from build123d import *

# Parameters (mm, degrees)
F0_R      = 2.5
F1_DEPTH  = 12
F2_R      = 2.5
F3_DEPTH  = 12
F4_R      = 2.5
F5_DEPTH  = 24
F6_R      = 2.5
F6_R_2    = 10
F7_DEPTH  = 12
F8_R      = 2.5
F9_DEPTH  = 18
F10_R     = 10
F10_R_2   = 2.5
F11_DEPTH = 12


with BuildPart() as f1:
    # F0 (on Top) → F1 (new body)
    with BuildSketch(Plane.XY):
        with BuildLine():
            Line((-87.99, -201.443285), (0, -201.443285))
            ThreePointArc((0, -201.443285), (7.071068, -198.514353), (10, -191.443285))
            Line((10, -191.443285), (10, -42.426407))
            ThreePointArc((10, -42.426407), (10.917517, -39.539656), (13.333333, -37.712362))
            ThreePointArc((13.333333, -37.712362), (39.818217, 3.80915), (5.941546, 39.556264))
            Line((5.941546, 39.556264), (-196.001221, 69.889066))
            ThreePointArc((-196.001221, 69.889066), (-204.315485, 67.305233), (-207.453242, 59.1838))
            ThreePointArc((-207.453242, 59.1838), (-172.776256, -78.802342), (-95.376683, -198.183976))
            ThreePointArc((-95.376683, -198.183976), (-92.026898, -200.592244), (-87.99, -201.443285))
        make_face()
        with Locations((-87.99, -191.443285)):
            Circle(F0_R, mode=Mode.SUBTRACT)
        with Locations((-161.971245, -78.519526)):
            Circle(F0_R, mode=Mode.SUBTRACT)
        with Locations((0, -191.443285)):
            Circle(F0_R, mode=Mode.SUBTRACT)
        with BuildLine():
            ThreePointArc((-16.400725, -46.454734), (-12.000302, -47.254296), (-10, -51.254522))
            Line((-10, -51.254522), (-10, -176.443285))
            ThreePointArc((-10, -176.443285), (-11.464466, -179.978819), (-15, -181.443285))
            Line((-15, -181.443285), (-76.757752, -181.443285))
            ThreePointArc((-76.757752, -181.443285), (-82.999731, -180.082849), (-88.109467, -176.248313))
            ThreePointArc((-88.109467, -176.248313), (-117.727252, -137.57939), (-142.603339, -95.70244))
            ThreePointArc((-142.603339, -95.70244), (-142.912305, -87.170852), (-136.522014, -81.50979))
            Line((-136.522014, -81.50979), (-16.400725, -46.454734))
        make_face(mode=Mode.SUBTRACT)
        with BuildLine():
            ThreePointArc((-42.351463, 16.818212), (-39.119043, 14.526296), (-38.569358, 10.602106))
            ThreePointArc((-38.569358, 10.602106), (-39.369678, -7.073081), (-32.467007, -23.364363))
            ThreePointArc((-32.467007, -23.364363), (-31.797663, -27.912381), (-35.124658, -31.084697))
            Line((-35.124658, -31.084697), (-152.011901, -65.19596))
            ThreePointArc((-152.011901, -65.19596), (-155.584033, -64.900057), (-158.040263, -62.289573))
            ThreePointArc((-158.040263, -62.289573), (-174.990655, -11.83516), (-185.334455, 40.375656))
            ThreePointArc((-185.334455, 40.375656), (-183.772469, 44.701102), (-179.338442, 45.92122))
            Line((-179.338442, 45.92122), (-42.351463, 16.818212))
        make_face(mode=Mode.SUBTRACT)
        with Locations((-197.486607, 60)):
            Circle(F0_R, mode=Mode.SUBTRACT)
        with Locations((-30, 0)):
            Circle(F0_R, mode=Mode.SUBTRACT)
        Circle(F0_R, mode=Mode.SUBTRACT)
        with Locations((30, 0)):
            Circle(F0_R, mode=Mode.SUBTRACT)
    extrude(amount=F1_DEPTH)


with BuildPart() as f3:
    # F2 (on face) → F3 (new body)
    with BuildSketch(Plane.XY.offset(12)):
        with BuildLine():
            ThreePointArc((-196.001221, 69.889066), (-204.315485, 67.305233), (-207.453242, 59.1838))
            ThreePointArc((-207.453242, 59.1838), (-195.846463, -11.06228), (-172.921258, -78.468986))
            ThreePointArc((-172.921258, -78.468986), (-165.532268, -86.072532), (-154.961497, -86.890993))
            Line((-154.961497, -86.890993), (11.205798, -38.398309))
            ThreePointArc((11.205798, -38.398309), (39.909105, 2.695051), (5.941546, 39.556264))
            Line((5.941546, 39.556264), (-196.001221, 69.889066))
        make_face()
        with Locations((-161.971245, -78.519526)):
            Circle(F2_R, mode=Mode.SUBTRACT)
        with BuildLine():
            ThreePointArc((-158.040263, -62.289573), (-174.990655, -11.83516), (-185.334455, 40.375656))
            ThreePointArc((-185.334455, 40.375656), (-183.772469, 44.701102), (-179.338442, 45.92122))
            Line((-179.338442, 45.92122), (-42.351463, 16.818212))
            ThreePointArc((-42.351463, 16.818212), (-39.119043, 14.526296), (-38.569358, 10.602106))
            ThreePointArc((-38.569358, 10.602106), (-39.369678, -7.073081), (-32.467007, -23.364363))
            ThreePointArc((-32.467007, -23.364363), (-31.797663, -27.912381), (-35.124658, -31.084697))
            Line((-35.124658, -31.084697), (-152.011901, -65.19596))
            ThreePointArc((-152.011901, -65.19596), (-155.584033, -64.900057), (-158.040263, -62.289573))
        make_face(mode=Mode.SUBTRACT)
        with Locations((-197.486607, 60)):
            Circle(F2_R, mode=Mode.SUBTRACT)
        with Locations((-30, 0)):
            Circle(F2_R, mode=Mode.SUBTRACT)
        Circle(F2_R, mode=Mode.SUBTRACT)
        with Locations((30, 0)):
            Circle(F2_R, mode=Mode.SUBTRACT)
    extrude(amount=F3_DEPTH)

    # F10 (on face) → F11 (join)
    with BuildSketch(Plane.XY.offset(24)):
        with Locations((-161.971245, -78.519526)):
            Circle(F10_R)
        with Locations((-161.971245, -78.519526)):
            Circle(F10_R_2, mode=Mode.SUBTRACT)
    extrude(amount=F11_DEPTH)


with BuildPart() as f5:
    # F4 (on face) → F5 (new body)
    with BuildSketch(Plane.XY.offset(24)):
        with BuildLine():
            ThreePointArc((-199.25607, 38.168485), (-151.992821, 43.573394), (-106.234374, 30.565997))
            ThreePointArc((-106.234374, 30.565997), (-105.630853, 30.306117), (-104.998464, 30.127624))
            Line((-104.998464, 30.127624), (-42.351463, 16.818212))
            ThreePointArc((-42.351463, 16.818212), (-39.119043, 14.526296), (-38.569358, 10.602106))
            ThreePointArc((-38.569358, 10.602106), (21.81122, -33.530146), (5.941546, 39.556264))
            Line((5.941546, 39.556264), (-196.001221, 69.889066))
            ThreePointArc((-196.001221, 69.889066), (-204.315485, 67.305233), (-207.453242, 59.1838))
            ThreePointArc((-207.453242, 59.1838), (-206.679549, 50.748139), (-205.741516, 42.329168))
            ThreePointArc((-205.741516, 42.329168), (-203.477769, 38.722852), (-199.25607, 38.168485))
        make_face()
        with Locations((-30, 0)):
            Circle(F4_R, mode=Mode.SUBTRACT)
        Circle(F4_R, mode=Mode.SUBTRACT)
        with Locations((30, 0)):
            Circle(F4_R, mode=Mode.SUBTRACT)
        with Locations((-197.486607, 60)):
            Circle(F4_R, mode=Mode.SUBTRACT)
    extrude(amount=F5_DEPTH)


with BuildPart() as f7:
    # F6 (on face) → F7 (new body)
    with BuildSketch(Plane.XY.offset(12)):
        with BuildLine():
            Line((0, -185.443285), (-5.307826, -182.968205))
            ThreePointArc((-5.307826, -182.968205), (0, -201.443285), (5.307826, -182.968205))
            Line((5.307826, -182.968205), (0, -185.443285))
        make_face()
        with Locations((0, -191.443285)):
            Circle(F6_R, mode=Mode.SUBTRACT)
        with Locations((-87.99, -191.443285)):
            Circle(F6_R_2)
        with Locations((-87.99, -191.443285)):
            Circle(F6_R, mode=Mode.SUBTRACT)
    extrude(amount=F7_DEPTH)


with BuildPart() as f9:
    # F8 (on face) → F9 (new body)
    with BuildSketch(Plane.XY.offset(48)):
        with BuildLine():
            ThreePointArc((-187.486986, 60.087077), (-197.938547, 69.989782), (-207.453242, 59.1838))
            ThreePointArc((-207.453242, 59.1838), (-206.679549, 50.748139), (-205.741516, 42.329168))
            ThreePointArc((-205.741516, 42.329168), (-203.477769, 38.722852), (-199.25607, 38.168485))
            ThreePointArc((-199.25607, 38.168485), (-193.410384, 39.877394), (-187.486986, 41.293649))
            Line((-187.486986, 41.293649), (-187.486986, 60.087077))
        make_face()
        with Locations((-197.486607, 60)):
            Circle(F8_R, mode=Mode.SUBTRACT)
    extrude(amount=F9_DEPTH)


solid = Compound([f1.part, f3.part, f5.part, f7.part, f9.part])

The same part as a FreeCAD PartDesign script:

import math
import FreeCAD as App
import Part
import Sketcher
Q = App.Units.Quantity

doc = App.newDocument("Part")
params = doc.addObject("Spreadsheet::Sheet", "Params")
for row, (alias, value) in enumerate([
    ("sketch1_diameter", "5 mm"),
    ("sketch1_radius", "9.999999 mm"),
    ("sketch1_radius2", "5 mm"),
    ("sketch1_radius3", "40 mm"),
    ("sketch1_radius4", "14.999999 mm"),
    ("pad1_length", "12 mm"),
    ("sketch2_diameter", "5 mm"),
    ("sketch2_diameter2", "5 mm"),
    ("sketch2_diameter3", "5 mm"),
    ("sketch2_diameter4", "5 mm"),
    ("sketch2_diameter5", "5 mm"),
    ("pad2_length", "12 mm"),
    ("sketch3_diameter", "20 mm"),
    ("sketch3_diameter2", "5 mm"),
    ("pad3_length", "12 mm"),
    ("sketch4_diameter", "5 mm"),
    ("sketch4_diameter2", "5 mm"),
    ("sketch4_diameter3", "5 mm"),
    ("sketch4_diameter4", "5 mm"),
    ("sketch4_radius", "4.999998 mm"),
    ("pad4_length", "24 mm"),
    ("sketch5_diameter", "5 mm"),
    ("sketch5_diameter2", "20 mm"),
    ("pad5_length", "12 mm"),
    ("sketch6_diameter", "5 mm"),
    ("sketch6_radius", "10 mm"),
    ("sketch6_radius2", "5 mm"),
    ("pad6_length", "18 mm"),
], start=1):
    params.set(f"A{row}", alias)
    params.set(f"B{row}", "=" + value)
    params.setAlias(f"B{row}", alias)

body = doc.addObject("PartDesign::Body", "Body")

sketch1 = body.newObject("Sketcher::SketchObject", "Sketch")
sketch1.AttachmentSupport = (doc.getObject("XY_Plane"), [""])
sketch1.MapMode = "FlatFace"
sketch1.addGeometry([
    Part.LineSegment(App.Vector(-87.99, -201.443285, 0), App.Vector(0, -201.443285, 0)),
    Part.ArcOfCircle(Part.Circle(App.Vector(0.000001, -191.443286, 0), App.Vector(0, 0, 1), 9.999999), math.radians(-90.000004), math.radians(0.000004)),
    Part.LineSegment(App.Vector(10, -191.443285, 0), App.Vector(10, -42.426407, 0)),
    Part.ArcOfCircle(Part.Circle(App.Vector(15, -42.426407, 0), App.Vector(0, 0, 1), 5), math.radians(109.471227), math.radians(179.999996)),
    Part.ArcOfCircle(Part.Circle(App.Vector(0, 0, 0), App.Vector(0, 0, 1), 40), math.radians(-70.52878), math.radians(81.457752)),
    Part.LineSegment(App.Vector(5.941546, 39.556264, 0), App.Vector(-196.001221, 69.889066, 0)),
    Part.ArcOfCircle(Part.Circle(App.Vector(-197.486608, 60.000001, 0), App.Vector(0, 0, 1), 9.999999), math.radians(81.45775), math.radians(184.681694)),
    Part.ArcOfCircle(Part.Circle(App.Vector(225.510667, 94.640614, 0), App.Vector(0, 0, 1), 434.41332), math.radians(-175.318311), math.radians(-137.618099)),
    Part.ArcOfCircle(Part.Circle(App.Vector(-87.989999, -191.443283, 0), App.Vector(0, 0, 1), 10.000002), math.radians(-137.618092), math.radians(-90.000005)),
    Part.Circle(App.Vector(-87.99, -191.443285, 0), App.Vector(0, 0, 1), 2.5),
    Part.Circle(App.Vector(-161.971245, -78.519526, 0), App.Vector(0, 0, 1), 2.5),
    Part.Circle(App.Vector(0, -191.443285, 0), App.Vector(0, 0, 1), 2.5),
    Part.LineSegment(App.Vector(-136.522014, -81.50979, 0), App.Vector(-16.400725, -46.454734, 0)),
    Part.ArcOfCircle(Part.Circle(App.Vector(-15, -51.254522, 0), App.Vector(0, 0, 1), 5), math.radians(0.000006), math.radians(106.268859)),
    Part.LineSegment(App.Vector(-10, -51.254522, 0), App.Vector(-10, -176.443285, 0)),
    Part.ArcOfCircle(Part.Circle(App.Vector(-15, -176.443285, 0), App.Vector(0, 0, 1), 5), math.radians(-90.000004), math.radians(0.000004)),
    Part.LineSegment(App.Vector(-15, -181.443285, 0), App.Vector(-76.757752, -181.443285, 0)),
    Part.ArcOfCircle(Part.Circle(App.Vector(-76.757753, -166.443286, 0), App.Vector(0, 0, 1), 14.999999), math.radians(-139.181234), math.radians(-89.999997)),
    Part.ArcOfCircle(Part.Circle(App.Vector(225.510684, 94.640628, 0), App.Vector(0, 0, 1), 414.413341), math.radians(-152.657583), math.radians(-139.181236)),
    Part.ArcOfCircle(Part.Circle(App.Vector(-133.720564, -91.109367, 0), App.Vector(0, 0, 1), 10.000001), math.radians(106.268859), math.radians(207.342413)),
    Part.LineSegment(App.Vector(-179.338442, 45.92122, 0), App.Vector(-42.351463, 16.818212, 0)),
    Part.ArcOfCircle(Part.Circle(App.Vector(-43.390527, 11.92737, 0), App.Vector(0, 0, 1), 4.999999), math.radians(-15.370088), math.radians(78.005792)),
    Part.ArcOfCircle(Part.Circle(App.Vector(-0.000001, 0, 0), App.Vector(0, 0, 1), 40), math.radians(164.629919), math.radians(215.740076)),
    Part.ArcOfCircle(Part.Circle(App.Vector(-36.525382, -26.284909, 0), App.Vector(0, 0, 1), 5), math.radians(-73.731147), math.radians(35.74008)),
    Part.LineSegment(App.Vector(-35.124658, -31.084697, 0), App.Vector(-152.011901, -65.19596, 0)),
    Part.ArcOfCircle(Part.Circle(App.Vector(-153.412625, -60.39617, 0), App.Vector(0, 0, 1), 5.000001), math.radians(-157.748028), math.radians(-73.731157)),
    Part.ArcOfCircle(Part.Circle(App.Vector(225.510715, 94.640629, 0), App.Vector(0, 0, 1), 414.41337), math.radians(-172.47585), math.radians(-157.748035)),
    Part.ArcOfCircle(Part.Circle(App.Vector(-180.377505, 41.030376, 0), App.Vector(0, 0, 1), 5.000001), math.radians(78.005803), math.radians(187.524144)),
    Part.Circle(App.Vector(-197.486607, 60, 0), App.Vector(0, 0, 1), 2.5),
    Part.Circle(App.Vector(-30, 0, 0), App.Vector(0, 0, 1), 2.5),
    Part.Circle(App.Vector(0, 0, 0), App.Vector(0, 0, 1), 2.5),
    Part.Circle(App.Vector(30, 0, 0), App.Vector(0, 0, 1), 2.5),
], False)
sketch1.addConstraint([
    Sketcher.Constraint("Tangent", 0, 2, 1, 1),
    Sketcher.Constraint("Tangent", 1, 2, 2, 1),
    Sketcher.Constraint("Tangent", 2, 2, 3, 2),
    Sketcher.Constraint("Tangent", 3, 1, 4, 1),
    Sketcher.Constraint("Tangent", 4, 2, 5, 1),
    Sketcher.Constraint("Tangent", 5, 2, 6, 1),
    Sketcher.Constraint("Tangent", 6, 2, 7, 1),
    Sketcher.Constraint("Tangent", 7, 2, 8, 1),
    Sketcher.Constraint("Tangent", 8, 2, 0, 1),
    Sketcher.Constraint("Tangent", 12, 2, 13, 2),
    Sketcher.Constraint("Tangent", 13, 1, 14, 1),
    Sketcher.Constraint("Tangent", 14, 2, 15, 2),
    Sketcher.Constraint("Tangent", 15, 1, 16, 1),
    Sketcher.Constraint("Tangent", 16, 2, 17, 2),
    Sketcher.Constraint("Tangent", 17, 1, 18, 2),
    Sketcher.Constraint("Tangent", 18, 1, 19, 2),
    Sketcher.Constraint("Tangent", 19, 1, 12, 1),
    Sketcher.Constraint("Tangent", 20, 2, 21, 2),
    Sketcher.Constraint("Tangent", 21, 1, 22, 1),
    Sketcher.Constraint("Tangent", 22, 2, 23, 2),
    Sketcher.Constraint("Tangent", 23, 1, 24, 1),
    Sketcher.Constraint("Tangent", 24, 2, 25, 2),
    Sketcher.Constraint("Tangent", 25, 1, 26, 2),
    Sketcher.Constraint("Tangent", 26, 1, 27, 2),
    Sketcher.Constraint("Tangent", 27, 1, 20, 1),
    Sketcher.Constraint("Horizontal", 0),
    Sketcher.Constraint("Vertical", 2),
    Sketcher.Constraint("Vertical", 14),
    Sketcher.Constraint("Horizontal", 16),
    Sketcher.Constraint("Coincident", 4, 3, -1, 1),
    Sketcher.Constraint("Coincident", 22, 3, -1, 1),
    Sketcher.Constraint("Coincident", 30, 3, -1, 1),
    Sketcher.Constraint("Coincident", 9, 3, 8, 3),
    Sketcher.Constraint("Coincident", 11, 3, 1, 3),
    Sketcher.Constraint("Coincident", 28, 3, 6, 3),
    Sketcher.Constraint("Equal", 1, 6),
    Sketcher.Constraint("Equal", 9, 10),
    Sketcher.Constraint("Equal", 10, 11),
    Sketcher.Constraint("Equal", 3, 13),
    Sketcher.Constraint("Equal", 13, 15),
    Sketcher.Constraint("Equal", 8, 19),
    Sketcher.Constraint("Equal", 15, 21),
    Sketcher.Constraint("Equal", 4, 22),
    Sketcher.Constraint("Equal", 21, 23),
    Sketcher.Constraint("Equal", 23, 25),
    Sketcher.Constraint("Equal", 25, 27),
    Sketcher.Constraint("Equal", 11, 28),
    Sketcher.Constraint("Equal", 28, 29),
    Sketcher.Constraint("Equal", 29, 30),
    Sketcher.Constraint("Equal", 30, 31),
    Sketcher.Constraint("Symmetric", 29, 3, 31, 3, -1, 1),
    Sketcher.Constraint("PointOnObject", 1, 3, -2),
    Sketcher.Constraint("PointOnObject", 29, 3, -1),
    Sketcher.Constraint("Parallel", 12, 24),
    Sketcher.Constraint("Horizontal", 1, 3, 9, 3),
    Sketcher.Constraint("Horizontal", 18, 3, 26, 3),
    Sketcher.Constraint("Diameter", 9, 5.0),
    Sketcher.Constraint("Radius", 1, 9.999999),
    Sketcher.Constraint("Radius", 3, 5.0),
    Sketcher.Constraint("Radius", 4, 40.0),
    Sketcher.Constraint("Radius", 17, 14.999999),
    Sketcher.Constraint("DistanceY", -1, 1, 6, 3, 60.000001),
    Sketcher.Constraint("DistanceX", 13, 3, -1, 1, 15.0),
    Sketcher.Constraint("DistanceX", 29, 3, -1, 1, 30.0),
    Sketcher.Constraint("DistanceY", 11, 3, 15, 3, 15.0),
    Sketcher.Constraint("DistanceX", 0, 1, 0, 2, 87.99),
    Sketcher.Constraint("Radius", 7, 434.41332),
    Sketcher.Constraint("Radius", 18, 414.413341),
    Sketcher.Constraint("Radius", 26, 414.41337),
    Sketcher.Constraint("DistanceX", 16, 2, 16, 1, 61.757752),
    Sketcher.Constraint("DistanceY", 2, 1, 2, 2, 149.016878),
    Sketcher.Constraint("DistanceX", 24, 2, -1, 1, 152.011901),
    Sketcher.Constraint("DistanceY", 1, 3, 7, 3, 286.0839),
    Sketcher.Constraint("DistanceY", 3, 3, 23, 3, 16.141499),
    Sketcher.Constraint("DistanceY", 10, 3, 27, 3, 119.549902),
    Sketcher.Constraint("DistanceX", 28, 3, 27, 3, 17.109102),
    Sketcher.Constraint("Distance", 20, 140.044341),
    Sketcher.Constraint("Distance", 24, 121.762908),
    Sketcher.Constraint("DistanceY", 14, 2, 14, 1, 125.188763),
    Sketcher.Constraint("DistanceY", -1, 1, 21, 3, 11.92737),
    Sketcher.Constraint("DistanceX", 10, 3, 19, 3, 28.250681),
])
sketch1.setExpression("Constraints[56]", "Params.sketch1_diameter")
sketch1.setExpression("Constraints[57]", "Params.sketch1_radius")
sketch1.setExpression("Constraints[58]", "Params.sketch1_radius2")
sketch1.setExpression("Constraints[59]", "Params.sketch1_radius3")
sketch1.setExpression("Constraints[60]", "Params.sketch1_radius4")
pad1 = body.newObject("PartDesign::Pad", "Pad")
pad1.Profile = sketch1
pad1.setExpression("Length", "Params.pad1_length")
body2 = doc.addObject("PartDesign::Body", "Body001")

sketch2 = body2.newObject("Sketcher::SketchObject", "Sketch001")
sketch2.AttachmentSupport = (doc.getObject("XY_Plane001"), [""])
sketch2.MapMode = "FlatFace"
sketch2.AttachmentOffset = App.Placement(App.Vector(0, 0, 12), App.Rotation())
sketch2.addGeometry([
    Part.ArcOfCircle(Part.Circle(App.Vector(-197.486608, 60.000001, 0), App.Vector(0, 0, 1), 9.999999), math.radians(81.45775), math.radians(184.681694)),
    Part.ArcOfCircle(Part.Circle(App.Vector(225.510627, 94.640603, 0), App.Vector(0, 0, 1), 434.413278), math.radians(-175.318312), math.radians(-156.51615)),
    Part.ArcOfCircle(Part.Circle(App.Vector(-159.163671, -72.491626, 0), App.Vector(0, 0, 1), 15.000001), math.radians(-156.516146), math.radians(-73.731146)),
    Part.LineSegment(App.Vector(-154.961497, -86.890993, 0), App.Vector(11.205798, -38.398309, 0)),
    Part.ArcOfCircle(Part.Circle(App.Vector(-0.000001, 0, 0), App.Vector(0, 0, 1), 40), math.radians(-73.731143), math.radians(81.45775)),
    Part.LineSegment(App.Vector(5.941546, 39.556264, 0), App.Vector(-196.001221, 69.889066, 0)),
    Part.Circle(App.Vector(-161.971245, -78.519526, 0), App.Vector(0, 0, 1), 2.5),
    Part.ArcOfCircle(Part.Circle(App.Vector(-153.412625, -60.39617, 0), App.Vector(0, 0, 1), 5.000001), math.radians(-157.748028), math.radians(-73.731157)),
    Part.ArcOfCircle(Part.Circle(App.Vector(225.510715, 94.640629, 0), App.Vector(0, 0, 1), 414.41337), math.radians(-172.47585), math.radians(-157.748035)),
    Part.ArcOfCircle(Part.Circle(App.Vector(-180.377505, 41.030376, 0), App.Vector(0, 0, 1), 5.000001), math.radians(78.005803), math.radians(187.524144)),
    Part.LineSegment(App.Vector(-179.338442, 45.92122, 0), App.Vector(-42.351463, 16.818212, 0)),
    Part.ArcOfCircle(Part.Circle(App.Vector(-43.390527, 11.92737, 0), App.Vector(0, 0, 1), 4.999999), math.radians(-15.370088), math.radians(78.005792)),
    Part.ArcOfCircle(Part.Circle(App.Vector(-0.000001, 0, 0), App.Vector(0, 0, 1), 40), math.radians(164.629919), math.radians(215.740076)),
    Part.ArcOfCircle(Part.Circle(App.Vector(-36.525382, -26.284909, 0), App.Vector(0, 0, 1), 5), math.radians(-73.731147), math.radians(35.74008)),
    Part.LineSegment(App.Vector(-35.124658, -31.084697, 0), App.Vector(-152.011901, -65.19596, 0)),
    Part.Circle(App.Vector(-197.486607, 60, 0), App.Vector(0, 0, 1), 2.5),
    Part.Circle(App.Vector(-30, 0, 0), App.Vector(0, 0, 1), 2.5),
    Part.Circle(App.Vector(0, 0, 0), App.Vector(0, 0, 1), 2.5),
    Part.Circle(App.Vector(30, 0, 0), App.Vector(0, 0, 1), 2.5),
], False)
sketch2.addConstraint([
    Sketcher.Constraint("Coincident", 0, 2, 1, 1),
    Sketcher.Constraint("Coincident", 1, 2, 2, 1),
    Sketcher.Constraint("Coincident", 2, 2, 3, 1),
    Sketcher.Constraint("Coincident", 3, 2, 4, 1),
    Sketcher.Constraint("Coincident", 4, 2, 5, 1),
    Sketcher.Constraint("Coincident", 5, 2, 0, 1),
    Sketcher.Constraint("Coincident", 7, 1, 8, 2),
    Sketcher.Constraint("Coincident", 8, 1, 9, 2),
    Sketcher.Constraint("Coincident", 9, 1, 10, 1),
    Sketcher.Constraint("Coincident", 10, 2, 11, 2),
    Sketcher.Constraint("Coincident", 11, 1, 12, 1),
    Sketcher.Constraint("Coincident", 12, 2, 13, 2),
    Sketcher.Constraint("Coincident", 13, 1, 14, 1),
    Sketcher.Constraint("Coincident", 14, 2, 7, 2),
    Sketcher.Constraint("Coincident", 4, 3, -1, 1),
    Sketcher.Constraint("Coincident", 12, 3, -1, 1),
    Sketcher.Constraint("Coincident", 17, 3, -1, 1),
    Sketcher.Constraint("Coincident", 15, 3, 0, 3),
    Sketcher.Constraint("PointOnObject", 16, 3, -1),
    Sketcher.Constraint("PointOnObject", 18, 3, -1),
    Sketcher.Constraint("Diameter", 6, 5.0),
    Sketcher.Constraint("Diameter", 15, 5.0),
    Sketcher.Constraint("Diameter", 16, 5.0),
    Sketcher.Constraint("Diameter", 17, 5.0),
    Sketcher.Constraint("Diameter", 18, 5.0),
    Sketcher.Constraint("Radius", 0, 9.999999),
    Sketcher.Constraint("Radius", 2, 15.000001),
    Sketcher.Constraint("Radius", 4, 40.0),
    Sketcher.Constraint("Radius", 7, 5.000001),
    Sketcher.Constraint("Radius", 9, 5.000001),
    Sketcher.Constraint("Radius", 11, 4.999999),
    Sketcher.Constraint("Radius", 12, 40.0),
    Sketcher.Constraint("Radius", 13, 5.0),
    Sketcher.Constraint("DistanceY", -1, 1, 0, 3, 60.000001),
    Sketcher.Constraint("DistanceX", 16, 3, -1, 1, 30.0),
    Sketcher.Constraint("DistanceX", -1, 1, 18, 3, 30.0),
    Sketcher.Constraint("Radius", 1, 434.413278),
    Sketcher.Constraint("Radius", 8, 414.41337),
    Sketcher.Constraint("DistanceY", -1, 1, 0, 2, 59.1838),
    Sketcher.Constraint("DistanceX", 14, 2, -1, 1, 152.011901),
    Sketcher.Constraint("DistanceY", 6, 3, 2, 3, 6.0279),
    Sketcher.Constraint("DistanceY", 7, 3, 8, 3, 155.036799),
    Sketcher.Constraint("DistanceY", 6, 3, 9, 3, 119.549902),
    Sketcher.Constraint("DistanceX", 15, 3, 9, 3, 17.109102),
    Sketcher.Constraint("DistanceX", 4, 3, 3, 2, 11.205799),
    Sketcher.Constraint("DistanceY", 3, 2, 13, 3, 12.1134),
    Sketcher.Constraint("DistanceX", 11, 1, 13, 1, 3.4447),
    Sketcher.Constraint("Distance", 5, 204.208129),
    Sketcher.Constraint("Distance", 10, 140.044341),
    Sketcher.Constraint("Distance", 14, 121.762908),
    Sketcher.Constraint("DistanceX", 2, 3, -1, 1, 159.163671),
    Sketcher.Constraint("DistanceY", 7, 3, -1, 1, 60.39617),
    Sketcher.Constraint("DistanceY", -1, 1, 11, 3, 11.92737),
    Sketcher.Constraint("DistanceX", 0, 2, -1, 1, 207.453242),
    Sketcher.Constraint("DistanceX", 1, 2, -1, 1, 172.921258),
    Sketcher.Constraint("DistanceX", 5, 2, -1, 1, 196.001221),
    Sketcher.Constraint("DistanceX", 9, 1, -1, 1, 179.338442),
    Sketcher.Constraint("DistanceY", -1, 1, 9, 1, 45.92122),
    Sketcher.Constraint("DistanceX", 6, 3, 1, 3, 387.481872),
    Sketcher.Constraint("DistanceX", 1, 2, 2, 2, 17.959761),
    Sketcher.Constraint("DistanceX", 7, 1, 7, 3, 4.627638),
    Sketcher.Constraint("DistanceX", 8, 1, 9, 3, 4.95695),
    Sketcher.Constraint("DistanceX", 11, 1, 12, 2, 6.102351),
])
sketch2.setExpression("Constraints[20]", "Params.sketch2_diameter")
sketch2.setExpression("Constraints[21]", "Params.sketch2_diameter2")
sketch2.setExpression("Constraints[22]", "Params.sketch2_diameter3")
sketch2.setExpression("Constraints[23]", "Params.sketch2_diameter4")
sketch2.setExpression("Constraints[24]", "Params.sketch2_diameter5")
pad2 = body2.newObject("PartDesign::Pad", "Pad001")
pad2.Profile = sketch2
pad2.setExpression("Length", "Params.pad2_length")

sketch3 = body2.newObject("Sketcher::SketchObject", "Sketch002")
sketch3.AttachmentSupport = (doc.getObject("XY_Plane001"), [""])
sketch3.MapMode = "FlatFace"
sketch3.AttachmentOffset = App.Placement(App.Vector(0, 0, 24), App.Rotation())
sketch3.addGeometry([
    Part.Circle(App.Vector(-161.971245, -78.519526, 0), App.Vector(0, 0, 1), 10),
    Part.Circle(App.Vector(-161.971245, -78.519526, 0), App.Vector(0, 0, 1), 2.5),
], False)
sketch3.addConstraint([
    Sketcher.Constraint("Coincident", 1, 3, 0, 3),
    Sketcher.Constraint("Diameter", 0, 20.0),
    Sketcher.Constraint("Diameter", 1, 5.0),
    Sketcher.Constraint("DistanceX", 0, 3, -1, 1, 161.971245),
    Sketcher.Constraint("DistanceY", 0, 3, -1, 1, 78.519526),
])
sketch3.setExpression("Constraints[1]", "Params.sketch3_diameter")
sketch3.setExpression("Constraints[2]", "Params.sketch3_diameter2")
pad3 = body2.newObject("PartDesign::Pad", "Pad002")
pad3.Profile = sketch3
pad3.setExpression("Length", "Params.pad3_length")
body3 = doc.addObject("PartDesign::Body", "Body002")

sketch4 = body3.newObject("Sketcher::SketchObject", "Sketch003")
sketch4.AttachmentSupport = (doc.getObject("XY_Plane002"), [""])
sketch4.MapMode = "FlatFace"
sketch4.AttachmentOffset = App.Placement(App.Vector(0, 0, 24), App.Rotation())
sketch4.addGeometry([
    Part.ArcOfCircle(Part.Circle(App.Vector(-161.971245, -78.519528, 0), App.Vector(0, 0, 1), 122.500003), math.radians(62.935397), math.radians(107.72002)),
    Part.ArcOfCircle(Part.Circle(App.Vector(-103.959399, 35.018465, 0), App.Vector(0, 0, 1), 4.999998), math.radians(-117.064619), math.radians(-101.99422)),
    Part.LineSegment(App.Vector(-104.998464, 30.127624, 0), App.Vector(-42.351463, 16.818212, 0)),
    Part.ArcOfCircle(Part.Circle(App.Vector(-43.390527, 11.92737, 0), App.Vector(0, 0, 1), 4.999999), math.radians(-15.370088), math.radians(78.005792)),
    Part.ArcOfCircle(Part.Circle(App.Vector(0, 0, 0), App.Vector(0, 0, 1), 40), math.radians(164.629918), math.radians(441.457751)),
    Part.LineSegment(App.Vector(5.941546, 39.556264, 0), App.Vector(-196.001221, 69.889066, 0)),
    Part.ArcOfCircle(Part.Circle(App.Vector(-197.486608, 60.000001, 0), App.Vector(0, 0, 1), 9.999999), math.radians(81.45775), math.radians(184.681694)),
    Part.ArcOfCircle(Part.Circle(App.Vector(225.51231, 94.640764, 0), App.Vector(0, 0, 1), 434.414969), math.radians(-175.318309), math.radians(-173.083744)),
    Part.ArcOfCircle(Part.Circle(App.Vector(-200.7779, 42.931261, 0), App.Vector(0, 0, 1), 5), math.radians(-173.083735), math.radians(-72.279981)),
    Part.Circle(App.Vector(-30, 0, 0), App.Vector(0, 0, 1), 2.5),
    Part.Circle(App.Vector(0, 0, 0), App.Vector(0, 0, 1), 2.5),
    Part.Circle(App.Vector(30, 0, 0), App.Vector(0, 0, 1), 2.5),
    Part.Circle(App.Vector(-197.486607, 60, 0), App.Vector(0, 0, 1), 2.5),
], False)
sketch4.addConstraint([
    Sketcher.Constraint("Coincident", 0, 1, 1, 1),
    Sketcher.Constraint("Coincident", 1, 2, 2, 1),
    Sketcher.Constraint("Coincident", 2, 2, 3, 2),
    Sketcher.Constraint("Coincident", 3, 1, 4, 1),
    Sketcher.Constraint("Coincident", 4, 2, 5, 1),
    Sketcher.Constraint("Coincident", 5, 2, 6, 1),
    Sketcher.Constraint("Coincident", 6, 2, 7, 1),
    Sketcher.Constraint("Coincident", 7, 2, 8, 1),
    Sketcher.Constraint("Coincident", 8, 2, 0, 2),
    Sketcher.Constraint("Coincident", 4, 3, -1, 1),
    Sketcher.Constraint("Coincident", 10, 3, -1, 1),
    Sketcher.Constraint("Coincident", 12, 3, 6, 3),
    Sketcher.Constraint("PointOnObject", 9, 3, -1),
    Sketcher.Constraint("PointOnObject", 11, 3, -1),
    Sketcher.Constraint("Diameter", 9, 5.0),
    Sketcher.Constraint("Diameter", 10, 5.0),
    Sketcher.Constraint("Diameter", 11, 5.0),
    Sketcher.Constraint("Diameter", 12, 5.0),
    Sketcher.Constraint("Radius", 1, 4.999998),
    Sketcher.Constraint("Radius", 3, 4.999999),
    Sketcher.Constraint("Radius", 4, 40.0),
    Sketcher.Constraint("Radius", 6, 9.999999),
    Sketcher.Constraint("Radius", 8, 5.0),
    Sketcher.Constraint("DistanceY", -1, 1, 6, 3, 60.000001),
    Sketcher.Constraint("DistanceX", 9, 3, -1, 1, 30.0),
    Sketcher.Constraint("DistanceX", -1, 1, 11, 3, 30.0),
    Sketcher.Constraint("Radius", 7, 434.414969),
    Sketcher.Constraint("Radius", 0, 122.500003),
    Sketcher.Constraint("DistanceX", 1, 2, 2, 2, 62.647001),
    Sketcher.Constraint("DistanceX", 1, 3, -1, 1, 103.959399),
    Sketcher.Constraint("DistanceX", 8, 3, -1, 1, 200.7779),
    Sketcher.Constraint("DistanceY", -1, 1, 6, 2, 59.1838),
    Sketcher.Constraint("DistanceY", 1, 3, 7, 3, 59.622299),
    Sketcher.Constraint("DistanceY", 1, 3, 5, 2, 34.870601),
    Sketcher.Constraint("DistanceY", 7, 2, 5, 2, 27.559898),
    Sketcher.Constraint("Distance", 5, 204.208129),
    Sketcher.Constraint("DistanceY", 0, 3, -1, 1, 78.519528),
    Sketcher.Constraint("DistanceY", -1, 1, 3, 3, 11.92737),
    Sketcher.Constraint("DistanceX", -1, 1, 7, 3, 225.51231),
    Sketcher.Constraint("DistanceY", -1, 1, 2, 2, 16.818212),
    Sketcher.Constraint("DistanceX", 8, 2, -1, 1, 199.25607),
    Sketcher.Constraint("DistanceY", 0, 1, 1, 3, 4.452468),
    Sketcher.Constraint("DistanceX", 3, 3, 3, 1, 4.821169),
])
sketch4.setExpression("Constraints[14]", "Params.sketch4_diameter")
sketch4.setExpression("Constraints[15]", "Params.sketch4_diameter2")
sketch4.setExpression("Constraints[16]", "Params.sketch4_diameter3")
sketch4.setExpression("Constraints[17]", "Params.sketch4_diameter4")
sketch4.setExpression("Constraints[18]", "Params.sketch4_radius")
pad4 = body3.newObject("PartDesign::Pad", "Pad003")
pad4.Profile = sketch4
pad4.setExpression("Length", "Params.pad4_length")
body4 = doc.addObject("PartDesign::Body", "Body003")
body4.AllowCompound = True

sketch5 = body4.newObject("Sketcher::SketchObject", "Sketch004")
sketch5.AttachmentSupport = (doc.getObject("XY_Plane003"), [""])
sketch5.MapMode = "FlatFace"
sketch5.AttachmentOffset = App.Placement(App.Vector(0, 0, 12), App.Rotation())
sketch5.addGeometry([
    Part.LineSegment(App.Vector(0, -185.443285, 0), App.Vector(-5.307826, -182.968205, 0)),
    Part.ArcOfCircle(Part.Circle(App.Vector(0, -191.443285, 0), App.Vector(0, 0, 1), 10), math.radians(122.058347), math.radians(417.941653)),
    Part.LineSegment(App.Vector(5.307826, -182.968205, 0), App.Vector(0, -185.443285, 0)),
    Part.Circle(App.Vector(0, -191.443285, 0), App.Vector(0, 0, 1), 2.5),
    Part.Circle(App.Vector(-87.99, -191.443285, 0), App.Vector(0, 0, 1), 10),
    Part.Circle(App.Vector(-87.99, -191.443285, 0), App.Vector(0, 0, 1), 2.5),
], False)
sketch5.addConstraint([
    Sketcher.Constraint("Coincident", 0, 2, 1, 1),
    Sketcher.Constraint("Coincident", 1, 2, 2, 1),
    Sketcher.Constraint("Coincident", 2, 2, 0, 1),
    Sketcher.Constraint("Coincident", 3, 3, 1, 3),
    Sketcher.Constraint("Coincident", 5, 3, 4, 3),
    Sketcher.Constraint("Equal", 1, 4),
    Sketcher.Constraint("Equal", 3, 5),
    Sketcher.Constraint("Symmetric", 0, 2, 1, 2, -2),
    Sketcher.Constraint("PointOnObject", 2, 2, -2),
    Sketcher.Constraint("Horizontal", 3, 3, 4, 3),
    Sketcher.Constraint("Diameter", 3, 5.0),
    Sketcher.Constraint("Diameter", 4, 20.0),
    Sketcher.Constraint("Angle", 0, Q("154.999999 deg")),
    Sketcher.Constraint("DistanceY", 3, 3, 2, 2, 6.0),
    Sketcher.Constraint("DistanceX", 4, 3, -1, 1, 87.99),
    Sketcher.Constraint("DistanceY", 1, 3, -1, 1, 191.443285),
])
sketch5.setExpression("Constraints[10]", "Params.sketch5_diameter")
sketch5.setExpression("Constraints[11]", "Params.sketch5_diameter2")
pad5 = body4.newObject("PartDesign::Pad", "Pad004")
pad5.Profile = sketch5
pad5.setExpression("Length", "Params.pad5_length")
body5 = doc.addObject("PartDesign::Body", "Body004")

sketch6 = body5.newObject("Sketcher::SketchObject", "Sketch005")
sketch6.AttachmentSupport = (doc.getObject("XY_Plane004"), [""])
sketch6.MapMode = "FlatFace"
sketch6.AttachmentOffset = App.Placement(App.Vector(0, 0, 48), App.Rotation())
sketch6.addGeometry([
    Part.ArcOfCircle(Part.Circle(App.Vector(-197.486607, 60, 0), App.Vector(0, 0, 1), 10), math.radians(0.498922), math.radians(184.681688)),
    Part.ArcOfCircle(Part.Circle(App.Vector(225.51231, 94.640764, 0), App.Vector(0, 0, 1), 434.414969), math.radians(-175.318309), math.radians(-173.083744)),
    Part.ArcOfCircle(Part.Circle(App.Vector(-200.7779, 42.931261, 0), App.Vector(0, 0, 1), 5), math.radians(-173.083735), math.radians(-72.279981)),
    Part.ArcOfCircle(Part.Circle(App.Vector(-161.971346, -78.51917, 0), App.Vector(0, 0, 1), 122.49963), math.radians(102.022253), math.radians(107.720026)),
    Part.LineSegment(App.Vector(-187.486986, 41.293649, 0), App.Vector(-187.486986, 60.087077, 0)),
    Part.Circle(App.Vector(-197.486607, 60, 0), App.Vector(0, 0, 1), 2.5),
], False)
sketch6.addConstraint([
    Sketcher.Constraint("Coincident", 0, 2, 1, 1),
    Sketcher.Constraint("Coincident", 1, 2, 2, 1),
    Sketcher.Constraint("Coincident", 2, 2, 3, 2),
    Sketcher.Constraint("Coincident", 3, 1, 4, 1),
    Sketcher.Constraint("Coincident", 4, 2, 0, 1),
    Sketcher.Constraint("Vertical", 4),
    Sketcher.Constraint("Coincident", 5, 3, 0, 3),
    Sketcher.Constraint("Diameter", 5, 5.0),
    Sketcher.Constraint("Radius", 0, 10.0),
    Sketcher.Constraint("Radius", 2, 5.0),
    Sketcher.Constraint("DistanceY", -1, 1, 0, 3, 60.0),
    Sketcher.Constraint("Radius", 1, 434.414969),
    Sketcher.Constraint("Radius", 3, 122.49963),
    Sketcher.Constraint("DistanceX", 2, 3, -1, 1, 200.7779),
    Sketcher.Constraint("DistanceY", -1, 1, 0, 2, 59.1838),
    Sketcher.Constraint("DistanceY", 4, 1, 4, 2, 18.793428),
    Sketcher.Constraint("DistanceX", -1, 1, 1, 3, 225.51231),
    Sketcher.Constraint("DistanceY", -1, 1, 2, 3, 42.931261),
    Sketcher.Constraint("DistanceY", 3, 3, -1, 1, 78.51917),
    Sketcher.Constraint("DistanceX", 2, 2, -1, 1, 199.25607),
    Sketcher.Constraint("DistanceY", 1, 2, 0, 2, 16.854632),
])
sketch6.setExpression("Constraints[7]", "Params.sketch6_diameter")
sketch6.setExpression("Constraints[8]", "Params.sketch6_radius")
sketch6.setExpression("Constraints[9]", "Params.sketch6_radius2")
pad6 = body5.newObject("PartDesign::Pad", "Pad005")
pad6.Profile = sketch6
pad6.setExpression("Length", "Params.pad6_length")

doc.recompute()
